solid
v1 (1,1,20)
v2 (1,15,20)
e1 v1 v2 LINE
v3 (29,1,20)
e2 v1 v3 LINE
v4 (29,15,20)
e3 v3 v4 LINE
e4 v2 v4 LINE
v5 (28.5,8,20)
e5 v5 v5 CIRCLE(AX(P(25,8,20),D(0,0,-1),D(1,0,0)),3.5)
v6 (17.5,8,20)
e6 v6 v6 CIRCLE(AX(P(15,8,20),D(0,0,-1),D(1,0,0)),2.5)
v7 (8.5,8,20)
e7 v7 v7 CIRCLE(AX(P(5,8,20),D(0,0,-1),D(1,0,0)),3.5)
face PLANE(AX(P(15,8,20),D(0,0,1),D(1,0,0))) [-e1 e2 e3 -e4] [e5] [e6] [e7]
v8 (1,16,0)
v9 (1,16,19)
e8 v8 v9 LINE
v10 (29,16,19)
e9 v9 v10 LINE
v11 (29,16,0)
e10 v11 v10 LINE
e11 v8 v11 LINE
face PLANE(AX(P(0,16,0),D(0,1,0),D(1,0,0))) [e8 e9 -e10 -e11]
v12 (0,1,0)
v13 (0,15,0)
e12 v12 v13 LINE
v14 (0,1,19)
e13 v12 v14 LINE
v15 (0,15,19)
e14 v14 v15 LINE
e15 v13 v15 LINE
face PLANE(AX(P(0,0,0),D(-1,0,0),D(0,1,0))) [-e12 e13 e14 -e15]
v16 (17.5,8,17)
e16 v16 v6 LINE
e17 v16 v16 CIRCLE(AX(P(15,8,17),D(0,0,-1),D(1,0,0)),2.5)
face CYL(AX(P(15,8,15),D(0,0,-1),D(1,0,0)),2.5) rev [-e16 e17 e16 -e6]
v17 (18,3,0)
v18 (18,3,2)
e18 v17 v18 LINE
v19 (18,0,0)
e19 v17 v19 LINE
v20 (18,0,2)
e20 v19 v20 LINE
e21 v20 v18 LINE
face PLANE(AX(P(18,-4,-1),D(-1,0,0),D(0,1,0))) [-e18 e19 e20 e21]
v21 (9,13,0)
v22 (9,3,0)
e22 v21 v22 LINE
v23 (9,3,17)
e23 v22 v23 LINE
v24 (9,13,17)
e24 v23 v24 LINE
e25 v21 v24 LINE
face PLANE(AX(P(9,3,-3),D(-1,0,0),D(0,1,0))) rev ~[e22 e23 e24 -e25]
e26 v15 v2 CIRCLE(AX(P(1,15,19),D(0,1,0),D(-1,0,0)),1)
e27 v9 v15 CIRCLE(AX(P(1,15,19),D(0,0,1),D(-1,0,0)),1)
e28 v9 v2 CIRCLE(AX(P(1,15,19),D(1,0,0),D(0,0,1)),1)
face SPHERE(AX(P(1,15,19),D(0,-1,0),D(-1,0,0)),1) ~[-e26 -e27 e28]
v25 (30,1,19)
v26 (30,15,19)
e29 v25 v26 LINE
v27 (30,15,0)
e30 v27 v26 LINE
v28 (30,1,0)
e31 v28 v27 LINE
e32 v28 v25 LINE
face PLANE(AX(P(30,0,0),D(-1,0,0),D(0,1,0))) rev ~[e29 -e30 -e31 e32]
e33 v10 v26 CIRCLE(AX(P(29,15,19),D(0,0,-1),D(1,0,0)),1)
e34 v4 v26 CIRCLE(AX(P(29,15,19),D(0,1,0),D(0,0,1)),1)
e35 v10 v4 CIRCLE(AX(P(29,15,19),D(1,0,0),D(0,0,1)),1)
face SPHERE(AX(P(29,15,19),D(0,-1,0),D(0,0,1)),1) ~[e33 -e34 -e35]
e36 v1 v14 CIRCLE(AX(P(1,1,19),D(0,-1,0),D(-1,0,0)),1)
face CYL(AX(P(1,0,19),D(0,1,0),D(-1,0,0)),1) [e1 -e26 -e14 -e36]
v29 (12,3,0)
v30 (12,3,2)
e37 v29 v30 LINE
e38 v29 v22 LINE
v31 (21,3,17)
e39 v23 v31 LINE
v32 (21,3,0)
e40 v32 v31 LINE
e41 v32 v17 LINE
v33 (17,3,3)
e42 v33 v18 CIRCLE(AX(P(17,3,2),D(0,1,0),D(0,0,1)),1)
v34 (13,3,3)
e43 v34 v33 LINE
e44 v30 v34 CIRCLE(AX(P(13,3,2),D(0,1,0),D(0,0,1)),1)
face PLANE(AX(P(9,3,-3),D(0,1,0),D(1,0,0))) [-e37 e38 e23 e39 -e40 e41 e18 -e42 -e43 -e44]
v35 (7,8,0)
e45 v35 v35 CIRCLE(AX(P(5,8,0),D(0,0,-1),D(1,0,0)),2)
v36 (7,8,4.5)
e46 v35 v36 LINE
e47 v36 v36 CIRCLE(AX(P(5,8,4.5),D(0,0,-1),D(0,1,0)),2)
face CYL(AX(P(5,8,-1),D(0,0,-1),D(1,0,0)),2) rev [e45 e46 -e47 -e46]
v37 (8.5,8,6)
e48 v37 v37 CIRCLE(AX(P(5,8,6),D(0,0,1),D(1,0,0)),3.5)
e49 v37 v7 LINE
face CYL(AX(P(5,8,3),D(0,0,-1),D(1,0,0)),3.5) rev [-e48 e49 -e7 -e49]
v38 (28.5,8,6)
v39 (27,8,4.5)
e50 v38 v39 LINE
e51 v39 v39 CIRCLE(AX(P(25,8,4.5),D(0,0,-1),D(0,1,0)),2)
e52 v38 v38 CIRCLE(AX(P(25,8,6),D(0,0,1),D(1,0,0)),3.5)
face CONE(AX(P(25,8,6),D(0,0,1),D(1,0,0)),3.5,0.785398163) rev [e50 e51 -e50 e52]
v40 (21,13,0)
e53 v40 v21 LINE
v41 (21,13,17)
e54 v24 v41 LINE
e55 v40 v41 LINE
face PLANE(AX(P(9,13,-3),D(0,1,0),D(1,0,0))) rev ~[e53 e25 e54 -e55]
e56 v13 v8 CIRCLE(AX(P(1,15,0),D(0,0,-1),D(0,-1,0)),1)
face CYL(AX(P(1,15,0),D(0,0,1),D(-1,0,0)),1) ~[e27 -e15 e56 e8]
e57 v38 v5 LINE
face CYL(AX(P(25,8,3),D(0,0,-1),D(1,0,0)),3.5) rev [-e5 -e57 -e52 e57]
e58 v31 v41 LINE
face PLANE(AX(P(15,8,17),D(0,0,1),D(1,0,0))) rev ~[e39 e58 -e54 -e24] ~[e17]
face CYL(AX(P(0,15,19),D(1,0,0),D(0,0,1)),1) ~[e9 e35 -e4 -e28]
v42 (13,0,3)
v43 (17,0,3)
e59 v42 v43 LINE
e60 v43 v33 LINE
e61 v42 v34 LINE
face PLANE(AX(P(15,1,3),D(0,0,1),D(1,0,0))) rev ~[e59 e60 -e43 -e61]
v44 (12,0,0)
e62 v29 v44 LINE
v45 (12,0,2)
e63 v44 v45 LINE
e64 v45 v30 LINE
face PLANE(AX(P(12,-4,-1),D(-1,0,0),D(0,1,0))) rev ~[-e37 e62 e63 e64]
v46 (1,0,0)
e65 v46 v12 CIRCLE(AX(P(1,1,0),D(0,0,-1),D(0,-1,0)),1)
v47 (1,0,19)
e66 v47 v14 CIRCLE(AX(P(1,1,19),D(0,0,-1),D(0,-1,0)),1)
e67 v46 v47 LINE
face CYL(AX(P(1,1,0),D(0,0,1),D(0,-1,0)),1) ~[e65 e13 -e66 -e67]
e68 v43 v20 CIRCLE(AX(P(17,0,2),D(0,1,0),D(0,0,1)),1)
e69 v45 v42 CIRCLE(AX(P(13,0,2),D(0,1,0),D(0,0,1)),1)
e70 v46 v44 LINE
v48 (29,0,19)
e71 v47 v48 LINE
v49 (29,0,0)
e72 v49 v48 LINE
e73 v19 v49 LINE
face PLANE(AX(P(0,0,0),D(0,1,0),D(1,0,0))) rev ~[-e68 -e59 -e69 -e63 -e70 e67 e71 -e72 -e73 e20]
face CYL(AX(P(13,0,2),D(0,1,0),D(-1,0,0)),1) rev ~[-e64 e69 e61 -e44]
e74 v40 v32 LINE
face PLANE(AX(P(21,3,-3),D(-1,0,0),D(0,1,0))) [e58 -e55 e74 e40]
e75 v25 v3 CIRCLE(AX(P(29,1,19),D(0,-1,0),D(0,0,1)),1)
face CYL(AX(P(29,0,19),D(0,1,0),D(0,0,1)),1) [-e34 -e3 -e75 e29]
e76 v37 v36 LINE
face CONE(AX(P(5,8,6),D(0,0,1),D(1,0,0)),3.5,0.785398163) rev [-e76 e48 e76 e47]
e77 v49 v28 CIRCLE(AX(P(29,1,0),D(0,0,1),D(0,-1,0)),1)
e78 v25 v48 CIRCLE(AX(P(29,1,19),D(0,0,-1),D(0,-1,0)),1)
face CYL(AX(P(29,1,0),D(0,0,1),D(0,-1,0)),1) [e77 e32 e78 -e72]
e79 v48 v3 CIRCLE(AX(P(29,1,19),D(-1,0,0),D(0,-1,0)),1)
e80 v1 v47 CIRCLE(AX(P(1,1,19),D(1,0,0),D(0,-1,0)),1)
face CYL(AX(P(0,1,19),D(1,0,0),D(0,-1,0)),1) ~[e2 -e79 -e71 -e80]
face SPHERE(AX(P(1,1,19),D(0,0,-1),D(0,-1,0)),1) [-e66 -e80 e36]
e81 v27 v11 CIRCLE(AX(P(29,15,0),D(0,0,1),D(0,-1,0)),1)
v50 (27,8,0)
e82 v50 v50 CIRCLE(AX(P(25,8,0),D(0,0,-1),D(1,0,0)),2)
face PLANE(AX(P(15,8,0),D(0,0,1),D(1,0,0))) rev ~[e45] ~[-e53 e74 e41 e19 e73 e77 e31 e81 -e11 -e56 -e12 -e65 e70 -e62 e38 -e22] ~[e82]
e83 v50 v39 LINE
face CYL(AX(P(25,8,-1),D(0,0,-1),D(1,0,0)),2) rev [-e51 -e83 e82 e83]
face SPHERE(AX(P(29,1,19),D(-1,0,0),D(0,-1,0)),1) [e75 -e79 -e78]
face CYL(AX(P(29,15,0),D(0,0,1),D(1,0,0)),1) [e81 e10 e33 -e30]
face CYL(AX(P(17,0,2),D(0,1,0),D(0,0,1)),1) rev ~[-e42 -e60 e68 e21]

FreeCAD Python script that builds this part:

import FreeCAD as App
import Part
import Sketcher
from FreeCAD import Vector


def edges_at(feature, points):
    """Names of the edges that pass closest to the given points."""
    edges = feature.Shape.Edges
    near = lambda p: min(range(len(edges)), key=lambda i: edges[i].distToShape(Part.Vertex(*p))[0])
    return sorted({f"Edge{near(p) + 1}" for p in points})

doc = App.newDocument("Part")
body = doc.addObject("PartDesign::Body", "Body")

# Sketch on XY plane
sketch1 = doc.addObject("Sketcher::SketchObject", "Sketch")
body.addObject(sketch1)
sketch1.AttachmentSupport = (doc.XY_Plane, [""])
sketch1.MapMode = "FlatFace"
sketch1.AttachmentOffset = App.Placement(Vector(0, 0, -1), App.Rotation())
sketch1.addGeometry(Part.LineSegment(Vector(12, 6, 0), Vector(12, -4, 0)), False)
sketch1.addGeometry(Part.LineSegment(Vector(12, -4, 0), Vector(18, -4, 0)), False)
sketch1.addGeometry(Part.LineSegment(Vector(18, -4, 0), Vector(18, 6, 0)), False)
sketch1.addGeometry(Part.LineSegment(Vector(18, 6, 0), Vector(12, 6, 0)), False)
sketch1.addConstraint(Sketcher.Constraint("Coincident", 0, 2, 1, 1))
sketch1.addConstraint(Sketcher.Constraint("Coincident", 1, 2, 2, 1))
sketch1.addConstraint(Sketcher.Constraint("Coincident", 2, 2, 3, 1))
sketch1.addConstraint(Sketcher.Constraint("Coincident", 3, 2, 0, 1))
sketch1.addConstraint(Sketcher.Constraint("Vertical", 0))
sketch1.addConstraint(Sketcher.Constraint("Horizontal", 1))
sketch1.addConstraint(Sketcher.Constraint("Vertical", 2))
sketch1.addConstraint(Sketcher.Constraint("Horizontal", 3))
sketch1.addConstraint(Sketcher.Constraint("DistanceX", 1, 1, 1, 2, 6.0))
sketch1.addConstraint(Sketcher.Constraint("DistanceY", 0, 2, 0, 1, 10.0))
sketch1.addConstraint(Sketcher.Constraint("DistanceX", -1, 1, 0, 2, 12.0))
sketch1.addConstraint(Sketcher.Constraint("DistanceY", 0, 2, -1, 1, 4.0))
pad1 = doc.addObject("PartDesign::Pad", "Pad")
body.addObject(pad1)
pad1.Profile = sketch1
pad1.Length = 4
body2 = doc.addObject("PartDesign::Body", "Body001")

# Sketch on XY plane
sketch2 = doc.addObject("Sketcher::SketchObject", "Sketch001")
body2.addObject(sketch2)
sketch2.AttachmentSupport = (doc.getObject("XY_Plane001"), [""])
sketch2.MapMode = "FlatFace"
sketch2.AttachmentOffset = App.Placement(Vector(0, 0, 15), App.Rotation())
sketch2.addGeometry(Part.Circle(Vector(15, 8, 0), Vector(0, 0, 1), 2.5), False)
sketch2.addConstraint(Sketcher.Constraint("Diameter", 0, 5.0))
sketch2.addConstraint(Sketcher.Constraint("DistanceX", -1, 1, 0, 3, 15.0))
sketch2.addConstraint(Sketcher.Constraint("DistanceY", -1, 1, 0, 3, 8.0))
pad2 = doc.addObject("PartDesign::Pad", "Pad001")
body2.addObject(pad2)
pad2.Profile = sketch2
pad2.Length = 10
body3 = doc.addObject("PartDesign::Body", "Body002")

# Sketch on XY plane
sketch3 = doc.addObject("Sketcher::SketchObject", "Sketch002")
body3.addObject(sketch3)
sketch3.AttachmentSupport = (doc.getObject("XY_Plane002"), [""])
sketch3.MapMode = "FlatFace"
sketch3.AttachmentOffset = App.Placement(Vector(0, 0, -1), App.Rotation())
sketch3.addGeometry(Part.Circle(Vector(5, 8, 0), Vector(0, 0, 1), 3.5), False)
sketch3.addConstraint(Sketcher.Constraint("Diameter", 0, 7.0))
sketch3.addConstraint(Sketcher.Constraint("DistanceX", -1, 1, 0, 3, 5.0))
sketch3.addConstraint(Sketcher.Constraint("DistanceY", -1, 1, 0, 3, 8.0))
pad3 = doc.addObject("PartDesign::Pad", "Pad002")
body3.addObject(pad3)
pad3.Profile = sketch3
pad3.Length = 33
doc.recompute()

chamfer = doc.addObject("PartDesign::Chamfer", "Chamfer")
body3.addObject(chamfer)
chamfer.Base = (pad3, edges_at(pad3, [(1.5, 8, -1)]))
chamfer.Size = 3
body4 = doc.addObject("PartDesign::Body", "Body003")
doc.recompute()

body3.Placement = App.Placement(Vector(0, 0, 4), App.Rotation(Vector(0, 0, 1), 0))
boolean = doc.addObject("PartDesign::Boolean", "Boolean")
body4.addObject(boolean)
boolean.Type = "Fuse"
boolean.addObjects([body3])
body5 = doc.addObject("PartDesign::Body", "Body004")

# Sketch on XY plane
sketch4 = doc.addObject("Sketcher::SketchObject", "Sketch003")
body5.addObject(sketch4)
sketch4.AttachmentSupport = (doc.getObject("XY_Plane004"), [""])
sketch4.MapMode = "FlatFace"
sketch4.AttachmentOffset = App.Placement(Vector(0, 0, -1), App.Rotation())
sketch4.addGeometry(Part.Circle(Vector(25, 8, 0), Vector(0, 0, 1), 3.5), False)
sketch4.addConstraint(Sketcher.Constraint("Diameter", 0, 7.0))
sketch4.addConstraint(Sketcher.Constraint("DistanceX", -1, 1, 0, 3, 25.0))
sketch4.addConstraint(Sketcher.Constraint("DistanceY", -1, 1, 0, 3, 8.0))
pad4 = doc.addObject("PartDesign::Pad", "Pad003")
body5.addObject(pad4)
pad4.Profile = sketch4
pad4.Length = 33
doc.recompute()

chamfer2 = doc.addObject("PartDesign::Chamfer", "Chamfer001")
body5.addObject(chamfer2)
chamfer2.Base = (pad4, edges_at(pad4, [(21.5, 8, -1)]))
chamfer2.Size = 3
body6 = doc.addObject("PartDesign::Body", "Body005")
doc.recompute()

body5.Placement = App.Placement(Vector(0, 0, 4), App.Rotation(Vector(0, 0, 1), 0))
boolean2 = doc.addObject("PartDesign::Boolean", "Boolean001")
body6.addObject(boolean2)
boolean2.Type = "Fuse"
boolean2.addObjects([body5])
body7 = doc.addObject("PartDesign::Body", "Body006")

# Sketch on XY plane
sketch5 = doc.addObject("Sketcher::SketchObject", "Sketch004")
body7.addObject(sketch5)
sketch5.AttachmentSupport = (doc.getObject("XY_Plane006"), [""])
sketch5.MapMode = "FlatFace"
sketch5.AttachmentOffset = App.Placement(Vector(0, 0, -1), App.Rotation())
sketch5.addGeometry(Part.Circle(Vector(5, 8, 0), Vector(0, 0, 1), 2), False)
sketch5.addConstraint(Sketcher.Constraint("Diameter", 0, 4.0))
sketch5.addConstraint(Sketcher.Constraint("DistanceX", -1, 1, 0, 3, 5.0))
sketch5.addConstraint(Sketcher.Constraint("DistanceY", -1, 1, 0, 3, 8.0))
pad5 = doc.addObject("PartDesign::Pad", "Pad004")
body7.addObject(pad5)
pad5.Profile = sketch5
pad5.Length = 33
body8 = doc.addObject("PartDesign::Body", "Body007")

# Sketch on XY plane
sketch6 = doc.addObject("Sketcher::SketchObject", "Sketch005")
body8.addObject(sketch6)
sketch6.AttachmentSupport = (doc.getObject("XY_Plane007"), [""])
sketch6.MapMode = "FlatFace"
sketch6.AttachmentOffset = App.Placement(Vector(0, 0, -1), App.Rotation())
sketch6.addGeometry(Part.Circle(Vector(25, 8, 0), Vector(0, 0, 1), 2), False)
sketch6.addConstraint(Sketcher.Constraint("Diameter", 0, 4.0))
sketch6.addConstraint(Sketcher.Constraint("DistanceX", -1, 1, 0, 3, 25.0))
sketch6.addConstraint(Sketcher.Constraint("DistanceY", -1, 1, 0, 3, 8.0))
pad6 = doc.addObject("PartDesign::Pad", "Pad005")
body8.addObject(pad6)
pad6.Profile = sketch6
pad6.Length = 33
body9 = doc.addObject("PartDesign::Body", "Body008")
body9.AllowCompound = True

# Sketch on XY plane
sketch7 = doc.addObject("Sketcher::SketchObject", "Sketch006")
body9.addObject(sketch7)
sketch7.AttachmentSupport = (doc.getObject("XY_Plane008"), [""])
sketch7.MapMode = "FlatFace"
sketch7.AttachmentOffset = App.Placement(Vector(0, 0, -3), App.Rotation())
sketch7.addGeometry(Part.LineSegment(Vector(9, 13, 0), Vector(9, 3, 0)), False)
sketch7.addGeometry(Part.LineSegment(Vector(9, 3, 0), Vector(21, 3, 0)), False)
sketch7.addGeometry(Part.LineSegment(Vector(21, 3, 0), Vector(21, 13, 0)), False)
sketch7.addGeometry(Part.LineSegment(Vector(21, 13, 0), Vector(9, 13, 0)), False)
sketch7.addConstraint(Sketcher.Constraint("Coincident", 0, 2, 1, 1))
sketch7.addConstraint(Sketcher.Constraint("Coincident", 1, 2, 2, 1))
sketch7.addConstraint(Sketcher.Constraint("Coincident", 2, 2, 3, 1))
sketch7.addConstraint(Sketcher.Constraint("Coincident", 3, 2, 0, 1))
sketch7.addConstraint(Sketcher.Constraint("Vertical", 0))
sketch7.addConstraint(Sketcher.Constraint("Horizontal", 1))
sketch7.addConstraint(Sketcher.Constraint("Vertical", 2))
sketch7.addConstraint(Sketcher.Constraint("Horizontal", 3))
sketch7.addConstraint(Sketcher.Constraint("DistanceX", 1, 1, 1, 2, 12.0))
sketch7.addConstraint(Sketcher.Constraint("DistanceY", 0, 2, 0, 1, 10.0))
sketch7.addConstraint(Sketcher.Constraint("DistanceX", -1, 1, 0, 2, 9.0))
sketch7.addConstraint(Sketcher.Constraint("DistanceY", -1, 1, 0, 2, 3.0))
pad7 = doc.addObject("PartDesign::Pad", "Pad006")
body9.addObject(pad7)
pad7.Profile = sketch7
pad7.Length = 20
doc.recompute()

boolean3 = doc.addObject("PartDesign::Boolean", "Boolean002")
body9.addObject(boolean3)
boolean3.Type = "Fuse"
boolean3.addObjects([body4])
doc.recompute()

boolean4 = doc.addObject("PartDesign::Boolean", "Boolean003")
body9.addObject(boolean4)
boolean4.Type = "Fuse"
boolean4.addObjects([body6])
doc.recompute()

boolean5 = doc.addObject("PartDesign::Boolean", "Boolean004")
body9.addObject(boolean5)
boolean5.Type = "Fuse"
boolean5.addObjects([body7])
doc.recompute()

boolean6 = doc.addObject("PartDesign::Boolean", "Boolean005")
body9.addObject(boolean6)
boolean6.Type = "Fuse"
boolean6.addObjects([body8])
body10 = doc.addObject("PartDesign::Body", "Body009")

# Sketch on XY plane
sketch8 = doc.addObject("Sketcher::SketchObject", "Sketch007")
body10.addObject(sketch8)
sketch8.AttachmentSupport = (doc.getObject("XY_Plane009"), [""])
sketch8.MapMode = "FlatFace"
sketch8.addGeometry(Part.LineSegment(Vector(0, 16, 0), Vector(0, 0, 0)), False)
sketch8.addGeometry(Part.LineSegment(Vector(0, 0, 0), Vector(30, 0, 0)), False)
sketch8.addGeometry(Part.LineSegment(Vector(30, 0, 0), Vector(30, 16, 0)), False)
sketch8.addGeometry(Part.LineSegment(Vector(30, 16, 0), Vector(0, 16, 0)), False)
sketch8.addConstraint(Sketcher.Constraint("Coincident", 0, 2, 1, 1))
sketch8.addConstraint(Sketcher.Constraint("Coincident", 1, 2, 2, 1))
sketch8.addConstraint(Sketcher.Constraint("Coincident", 2, 2, 3, 1))
sketch8.addConstraint(Sketcher.Constraint("Coincident", 3, 2, 0, 1))
sketch8.addConstraint(Sketcher.Constraint("Vertical", 0))
sketch8.addConstraint(Sketcher.Constraint("Horizontal", 1))
sketch8.addConstraint(Sketcher.Constraint("Vertical", 2))
sketch8.addConstraint(Sketcher.Constraint("Horizontal", 3))
sketch8.addConstraint(Sketcher.Constraint("Coincident", 0, 2, -1, 1))
sketch8.addConstraint(Sketcher.Constraint("DistanceX", 1, 1, 1, 2, 30.0))
sketch8.addConstraint(Sketcher.Constraint("DistanceY", 0, 2, 0, 1, 16.0))
pad8 = doc.addObject("PartDesign::Pad", "Pad007")
body10.addObject(pad8)
pad8.Profile = sketch8
pad8.Length = 20
doc.recompute()

boolean7 = doc.addObject("PartDesign::Boolean", "Boolean006")
body10.addObject(boolean7)
boolean7.Type = "Cut"
boolean7.addObjects([body9])
doc.recompute()

boolean8 = doc.addObject("PartDesign::Boolean", "Boolean007")
body10.addObject(boolean8)
boolean8.Type = "Cut"
boolean8.addObjects([body2])
doc.recompute()

boolean9 = doc.addObject("PartDesign::Boolean", "Boolean008")
body10.addObject(boolean9)
boolean9.Type = "Cut"
boolean9.addObjects([body])
doc.recompute()

fillet = doc.addObject("PartDesign::Fillet", "Fillet")
body10.addObject(fillet)
fillet.Base = (boolean9, edges_at(boolean9, [(12, 1.5, 3), (18, 1.5, 3)]))
fillet.Radius = 1
doc.recompute()

fillet2 = doc.addObject("PartDesign::Fillet", "Fillet001")
body10.addObject(fillet2)
fillet2.Base = (fillet, edges_at(fillet, [
    (0, 0, 10),
    (15, 0, 20),
    (30, 0, 10),
    (0, 8, 20),
    (0, 16, 10),
    (30, 8, 20),
    (15, 16, 20),
    (30, 16, 10),
]))
fillet2.Radius = 1

doc.recompute()
